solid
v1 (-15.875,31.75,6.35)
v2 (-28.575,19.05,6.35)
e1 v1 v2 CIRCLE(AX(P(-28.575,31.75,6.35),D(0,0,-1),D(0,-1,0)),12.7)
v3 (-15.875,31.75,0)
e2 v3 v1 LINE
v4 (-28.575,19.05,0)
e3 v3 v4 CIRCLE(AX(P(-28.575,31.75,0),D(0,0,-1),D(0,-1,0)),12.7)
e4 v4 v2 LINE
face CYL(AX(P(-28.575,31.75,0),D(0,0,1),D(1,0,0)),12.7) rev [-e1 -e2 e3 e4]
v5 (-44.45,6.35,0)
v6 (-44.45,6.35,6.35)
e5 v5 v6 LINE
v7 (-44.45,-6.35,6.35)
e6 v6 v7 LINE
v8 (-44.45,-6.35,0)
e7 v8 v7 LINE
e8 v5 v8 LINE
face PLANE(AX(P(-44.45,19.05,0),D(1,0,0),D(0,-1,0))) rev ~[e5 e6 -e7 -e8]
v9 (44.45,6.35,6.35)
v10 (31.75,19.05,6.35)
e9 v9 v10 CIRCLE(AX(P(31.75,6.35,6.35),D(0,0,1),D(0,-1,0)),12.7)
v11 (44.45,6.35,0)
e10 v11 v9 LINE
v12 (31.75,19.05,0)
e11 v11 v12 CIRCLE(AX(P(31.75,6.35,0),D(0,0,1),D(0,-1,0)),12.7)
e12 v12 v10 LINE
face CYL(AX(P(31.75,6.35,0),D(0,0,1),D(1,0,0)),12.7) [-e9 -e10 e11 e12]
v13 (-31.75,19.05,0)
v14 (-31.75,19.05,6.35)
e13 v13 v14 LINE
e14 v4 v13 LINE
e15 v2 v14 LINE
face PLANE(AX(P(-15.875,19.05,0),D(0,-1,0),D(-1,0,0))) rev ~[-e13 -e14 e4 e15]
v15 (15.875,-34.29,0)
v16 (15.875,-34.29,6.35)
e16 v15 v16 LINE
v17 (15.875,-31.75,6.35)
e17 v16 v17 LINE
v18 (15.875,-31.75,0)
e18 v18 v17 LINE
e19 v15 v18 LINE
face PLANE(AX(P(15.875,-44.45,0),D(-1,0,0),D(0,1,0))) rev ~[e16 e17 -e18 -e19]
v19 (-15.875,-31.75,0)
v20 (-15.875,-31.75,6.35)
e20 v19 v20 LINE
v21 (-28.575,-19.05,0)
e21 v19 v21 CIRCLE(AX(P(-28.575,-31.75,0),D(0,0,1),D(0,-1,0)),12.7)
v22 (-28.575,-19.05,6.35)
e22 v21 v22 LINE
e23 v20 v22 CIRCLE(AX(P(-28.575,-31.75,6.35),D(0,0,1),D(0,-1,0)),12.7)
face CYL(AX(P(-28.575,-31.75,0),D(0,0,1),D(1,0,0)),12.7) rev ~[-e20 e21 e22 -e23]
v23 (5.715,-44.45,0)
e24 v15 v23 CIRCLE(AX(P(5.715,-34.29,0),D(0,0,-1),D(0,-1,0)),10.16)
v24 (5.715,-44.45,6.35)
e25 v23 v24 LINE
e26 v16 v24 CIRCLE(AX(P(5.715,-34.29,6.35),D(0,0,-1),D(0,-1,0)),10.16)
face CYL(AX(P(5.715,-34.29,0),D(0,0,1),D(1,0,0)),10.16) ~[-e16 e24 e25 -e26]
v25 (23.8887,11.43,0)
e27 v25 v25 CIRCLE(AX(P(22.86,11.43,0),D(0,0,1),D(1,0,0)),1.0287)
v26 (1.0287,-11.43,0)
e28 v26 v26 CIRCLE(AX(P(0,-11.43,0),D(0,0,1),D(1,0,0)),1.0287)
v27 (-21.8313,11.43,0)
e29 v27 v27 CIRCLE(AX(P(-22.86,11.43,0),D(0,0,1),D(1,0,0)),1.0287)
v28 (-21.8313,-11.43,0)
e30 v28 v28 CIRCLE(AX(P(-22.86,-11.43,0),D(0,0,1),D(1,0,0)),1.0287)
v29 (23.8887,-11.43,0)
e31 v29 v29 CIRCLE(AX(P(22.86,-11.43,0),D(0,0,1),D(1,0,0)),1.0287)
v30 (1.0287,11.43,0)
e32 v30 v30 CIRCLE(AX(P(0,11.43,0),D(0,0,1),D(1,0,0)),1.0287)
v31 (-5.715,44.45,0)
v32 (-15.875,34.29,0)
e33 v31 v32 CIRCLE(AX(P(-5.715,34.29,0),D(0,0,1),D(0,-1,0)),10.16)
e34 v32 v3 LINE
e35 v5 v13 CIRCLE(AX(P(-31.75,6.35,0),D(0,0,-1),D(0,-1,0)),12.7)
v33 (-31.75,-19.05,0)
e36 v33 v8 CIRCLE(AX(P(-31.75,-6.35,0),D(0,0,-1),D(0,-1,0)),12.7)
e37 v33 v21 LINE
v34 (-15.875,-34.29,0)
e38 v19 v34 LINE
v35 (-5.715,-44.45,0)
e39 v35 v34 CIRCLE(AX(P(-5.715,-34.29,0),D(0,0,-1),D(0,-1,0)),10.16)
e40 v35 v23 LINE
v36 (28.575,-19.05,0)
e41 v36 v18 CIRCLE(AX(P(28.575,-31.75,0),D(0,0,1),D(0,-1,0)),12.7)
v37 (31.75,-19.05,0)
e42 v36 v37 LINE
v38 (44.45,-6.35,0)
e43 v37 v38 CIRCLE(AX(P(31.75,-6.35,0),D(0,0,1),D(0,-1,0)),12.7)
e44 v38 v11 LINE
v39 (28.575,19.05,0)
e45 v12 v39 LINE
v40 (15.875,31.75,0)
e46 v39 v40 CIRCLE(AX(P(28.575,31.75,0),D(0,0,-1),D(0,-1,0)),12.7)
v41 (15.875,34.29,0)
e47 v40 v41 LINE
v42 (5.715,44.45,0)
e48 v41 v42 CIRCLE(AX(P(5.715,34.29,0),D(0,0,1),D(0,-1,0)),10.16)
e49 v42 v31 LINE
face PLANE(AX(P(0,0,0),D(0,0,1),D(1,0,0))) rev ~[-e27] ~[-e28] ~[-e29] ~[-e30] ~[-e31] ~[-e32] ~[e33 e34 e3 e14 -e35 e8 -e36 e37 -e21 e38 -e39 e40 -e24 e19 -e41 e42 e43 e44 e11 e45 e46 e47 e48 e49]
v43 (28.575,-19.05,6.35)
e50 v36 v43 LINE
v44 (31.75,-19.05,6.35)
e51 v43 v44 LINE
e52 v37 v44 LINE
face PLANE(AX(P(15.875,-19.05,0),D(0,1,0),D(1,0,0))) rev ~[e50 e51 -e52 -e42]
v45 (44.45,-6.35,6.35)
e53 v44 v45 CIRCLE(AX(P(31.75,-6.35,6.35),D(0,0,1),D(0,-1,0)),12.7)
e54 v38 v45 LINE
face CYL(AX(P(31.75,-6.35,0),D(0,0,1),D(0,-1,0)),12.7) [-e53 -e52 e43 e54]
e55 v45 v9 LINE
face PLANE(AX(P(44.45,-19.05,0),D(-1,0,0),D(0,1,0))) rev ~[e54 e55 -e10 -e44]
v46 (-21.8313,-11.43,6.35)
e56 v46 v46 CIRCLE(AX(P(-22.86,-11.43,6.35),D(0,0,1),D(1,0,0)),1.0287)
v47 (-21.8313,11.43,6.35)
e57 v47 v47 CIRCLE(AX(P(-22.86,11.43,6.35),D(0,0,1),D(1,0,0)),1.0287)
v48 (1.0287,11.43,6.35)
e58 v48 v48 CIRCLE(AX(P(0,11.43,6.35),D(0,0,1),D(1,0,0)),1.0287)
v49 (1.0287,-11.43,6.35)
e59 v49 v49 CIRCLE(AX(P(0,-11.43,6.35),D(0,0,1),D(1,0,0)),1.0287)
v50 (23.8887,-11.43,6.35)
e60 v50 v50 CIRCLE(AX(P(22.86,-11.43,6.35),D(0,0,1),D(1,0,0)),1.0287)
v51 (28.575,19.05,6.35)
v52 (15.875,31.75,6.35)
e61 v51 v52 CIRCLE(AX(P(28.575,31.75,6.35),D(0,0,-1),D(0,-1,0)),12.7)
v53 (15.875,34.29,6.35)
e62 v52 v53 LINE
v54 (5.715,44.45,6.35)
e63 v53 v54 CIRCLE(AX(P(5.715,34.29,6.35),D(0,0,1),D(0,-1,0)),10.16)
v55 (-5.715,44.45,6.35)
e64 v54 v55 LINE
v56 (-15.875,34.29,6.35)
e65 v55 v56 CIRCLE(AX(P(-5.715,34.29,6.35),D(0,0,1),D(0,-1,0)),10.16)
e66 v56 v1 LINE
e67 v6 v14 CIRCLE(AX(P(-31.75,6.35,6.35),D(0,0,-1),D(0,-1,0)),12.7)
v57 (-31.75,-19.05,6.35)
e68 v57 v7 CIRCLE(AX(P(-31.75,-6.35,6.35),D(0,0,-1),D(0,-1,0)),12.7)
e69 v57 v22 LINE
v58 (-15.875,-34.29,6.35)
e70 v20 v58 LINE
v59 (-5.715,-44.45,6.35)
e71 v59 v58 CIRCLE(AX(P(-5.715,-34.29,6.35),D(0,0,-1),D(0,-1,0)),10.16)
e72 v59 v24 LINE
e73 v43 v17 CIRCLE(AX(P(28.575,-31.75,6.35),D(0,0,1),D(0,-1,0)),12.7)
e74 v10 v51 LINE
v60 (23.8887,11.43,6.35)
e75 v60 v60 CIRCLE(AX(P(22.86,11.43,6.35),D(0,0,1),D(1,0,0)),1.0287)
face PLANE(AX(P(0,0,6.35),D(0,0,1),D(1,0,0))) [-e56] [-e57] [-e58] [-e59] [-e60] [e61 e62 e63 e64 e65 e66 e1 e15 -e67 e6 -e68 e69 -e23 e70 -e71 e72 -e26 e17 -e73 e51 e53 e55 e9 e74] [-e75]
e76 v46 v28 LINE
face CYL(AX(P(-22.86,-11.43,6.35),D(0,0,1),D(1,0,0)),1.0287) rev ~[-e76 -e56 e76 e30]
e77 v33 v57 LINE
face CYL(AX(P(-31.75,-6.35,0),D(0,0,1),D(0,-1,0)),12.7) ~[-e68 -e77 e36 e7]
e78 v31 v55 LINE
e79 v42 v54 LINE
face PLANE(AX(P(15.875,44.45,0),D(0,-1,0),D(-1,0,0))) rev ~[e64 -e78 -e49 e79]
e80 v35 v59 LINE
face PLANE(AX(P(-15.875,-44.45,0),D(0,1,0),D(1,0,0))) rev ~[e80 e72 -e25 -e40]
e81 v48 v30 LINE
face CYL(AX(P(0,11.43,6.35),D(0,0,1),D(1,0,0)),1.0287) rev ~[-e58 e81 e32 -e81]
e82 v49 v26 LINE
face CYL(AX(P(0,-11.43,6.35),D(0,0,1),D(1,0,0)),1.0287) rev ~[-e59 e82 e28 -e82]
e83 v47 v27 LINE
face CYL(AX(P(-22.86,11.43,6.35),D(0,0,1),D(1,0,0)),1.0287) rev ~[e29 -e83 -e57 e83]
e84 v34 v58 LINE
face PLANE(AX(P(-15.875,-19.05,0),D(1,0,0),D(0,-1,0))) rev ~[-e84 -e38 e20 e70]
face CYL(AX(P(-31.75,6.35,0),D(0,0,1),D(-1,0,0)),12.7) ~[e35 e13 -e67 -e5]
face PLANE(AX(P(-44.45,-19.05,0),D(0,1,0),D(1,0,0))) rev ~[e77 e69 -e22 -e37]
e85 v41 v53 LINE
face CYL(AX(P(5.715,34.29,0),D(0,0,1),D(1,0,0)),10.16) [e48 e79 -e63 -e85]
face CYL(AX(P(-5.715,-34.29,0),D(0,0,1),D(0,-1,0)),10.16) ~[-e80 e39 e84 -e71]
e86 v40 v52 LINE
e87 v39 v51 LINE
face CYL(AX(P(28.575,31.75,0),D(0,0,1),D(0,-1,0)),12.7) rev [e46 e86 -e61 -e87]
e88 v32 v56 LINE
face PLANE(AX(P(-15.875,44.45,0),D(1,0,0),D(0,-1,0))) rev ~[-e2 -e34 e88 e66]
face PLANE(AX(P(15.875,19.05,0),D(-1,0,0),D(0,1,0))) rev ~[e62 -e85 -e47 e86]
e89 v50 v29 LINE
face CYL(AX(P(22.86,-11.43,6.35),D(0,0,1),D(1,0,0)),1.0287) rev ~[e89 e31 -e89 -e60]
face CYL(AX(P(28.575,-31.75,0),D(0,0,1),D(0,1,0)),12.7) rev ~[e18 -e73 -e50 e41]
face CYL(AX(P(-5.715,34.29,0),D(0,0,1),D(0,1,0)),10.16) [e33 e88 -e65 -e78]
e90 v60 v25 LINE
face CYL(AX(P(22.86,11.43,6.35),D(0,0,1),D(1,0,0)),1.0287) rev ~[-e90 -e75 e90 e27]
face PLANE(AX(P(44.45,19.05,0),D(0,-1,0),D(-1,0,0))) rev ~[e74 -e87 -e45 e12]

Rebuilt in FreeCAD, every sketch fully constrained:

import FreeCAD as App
import Part
import Sketcher
from FreeCAD import Vector
Q = App.Units.Quantity


def edges_at(feature, points):
    """Names of the edges that pass closest to the given points."""
    edges = feature.Shape.Edges
    near = lambda p: min(range(len(edges)), key=lambda i: edges[i].distToShape(Part.Vertex(*p))[0])
    return sorted({f"Edge{near(p) + 1}" for p in points})


def add_polygon(sketch, points):
    """Adds a closed chain of lines whose ends are joined by coincident constraints."""
    first, n = sketch.GeometryCount, len(points)
    for a, b in zip(points, points[1:] + points[:1]):
        sketch.addGeometry(Part.LineSegment(App.Vector(*a, 0), App.Vector(*b, 0)), False)
    for i in range(n):
        sketch.addConstraint(Sketcher.Constraint("Coincident", first + i, 2, first + (i + 1) % n, 1))

doc = App.newDocument("Part")
body = doc.addObject("PartDesign::Body", "Body")

# Sketch on XY plane
sketch1 = body.newObject("Sketcher::SketchObject", "Sketch")
sketch1.AttachmentSupport = (doc.getObject("XY_Plane"), [""])
sketch1.MapMode = "FlatFace"
add_polygon(sketch1, [(16, -19), (44, -19), (44, 19), (16, 19), (16, 44), (-16, 44), (-16, 19), (-44, 19), (-44, -19), (-16, -19), (-16, -44), (16, -44)])  # lines 0-11
sketch1.addConstraint(Sketcher.Constraint("Horizontal", 0))
sketch1.addConstraint(Sketcher.Constraint("Vertical", 1))
sketch1.addConstraint(Sketcher.Constraint("Horizontal", 2))
sketch1.addConstraint(Sketcher.Constraint("Vertical", 3))
sketch1.addConstraint(Sketcher.Constraint("Horizontal", 4))
sketch1.addConstraint(Sketcher.Constraint("Vertical", 5))
sketch1.addConstraint(Sketcher.Constraint("Horizontal", 6))
sketch1.addConstraint(Sketcher.Constraint("Vertical", 7))
sketch1.addConstraint(Sketcher.Constraint("Horizontal", 8))
sketch1.addConstraint(Sketcher.Constraint("Vertical", 9))
sketch1.addConstraint(Sketcher.Constraint("Horizontal", 10))
sketch1.addConstraint(Sketcher.Constraint("Vertical", 11))
sketch1.addConstraint(Sketcher.Constraint("Symmetric", 0, 2, 6, 2, -1, 1))
sketch1.addConstraint(Sketcher.Constraint("Symmetric", 2, 2, 8, 2, -1, 1))
sketch1.addConstraint(Sketcher.Constraint("Symmetric", 4, 2, 10, 2, -1, 1))
sketch1.addConstraint(Sketcher.Constraint("Symmetric", 2, 2, 5, 2, -2))
sketch1.addConstraint(Sketcher.Constraint("DistanceY", 3, 1, 3, 2, Q("1 in")))
sketch1.addConstraint(Sketcher.Constraint("DistanceY", 1, 1, 1, 2, Q("1.5 in")))
sketch1.addConstraint(Sketcher.Constraint("DistanceX", 4, 2, 4, 1, Q("1.25 in")))
sketch1.addConstraint(Sketcher.Constraint("DistanceX", 6, 2, 1, 2, Q("3.5 in")))
pad1 = body.newObject("PartDesign::Pad", "Pad")
pad1.Profile = sketch1
pad1.Length = Q("0.25 in")

# Sketch on XY plane
sketch2 = body.newObject("Sketcher::SketchObject", "Sketch001")
sketch2.AttachmentSupport = (doc.getObject("XY_Plane"), [""])
sketch2.MapMode = "FlatFace"
sketch2.AttachmentOffset = App.Placement(Vector(0, 0, 0.25 * 25.4), App.Rotation())
sketch2.addGeometry(Part.Circle(Vector(-22.9, 11.4, 0), Vector(0, 0, 1), 1), False)
sketch2.addGeometry(Part.Circle(Vector(-22.9, -11.4, 0), Vector(0, 0, 1), 1), False)
sketch2.addGeometry(Part.Circle(Vector(0, 11.4, 0), Vector(0, 0, 1), 1), False)
sketch2.addGeometry(Part.Circle(Vector(0, -11.4, 0), Vector(0, 0, 1), 1), False)
sketch2.addGeometry(Part.Circle(Vector(22.9, 11.4, 0), Vector(0, 0, 1), 1), False)
sketch2.addGeometry(Part.Circle(Vector(22.9, -11.4, 0), Vector(0, 0, 1), 1), False)
sketch2.addConstraint(Sketcher.Constraint("Equal", 0, 1))
sketch2.addConstraint(Sketcher.Constraint("Equal", 1, 2))
sketch2.addConstraint(Sketcher.Constraint("Equal", 2, 3))
sketch2.addConstraint(Sketcher.Constraint("Equal", 3, 4))
sketch2.addConstraint(Sketcher.Constraint("Equal", 4, 5))
sketch2.addConstraint(Sketcher.Constraint("Symmetric", 2, 3, 3, 3, -1, 1))
sketch2.addConstraint(Sketcher.Constraint("Symmetric", 1, 3, 4, 3, -1, 1))
sketch2.addConstraint(Sketcher.Constraint("Symmetric", 0, 3, 5, 3, -1, 1))
sketch2.addConstraint(Sketcher.Constraint("Symmetric", 0, 3, 4, 3, -2))
sketch2.addConstraint(Sketcher.Constraint("PointOnObject", 2, 3, -2))
sketch2.addConstraint(Sketcher.Constraint("Horizontal", 0, 3, 2, 3))
sketch2.addConstraint(Sketcher.Constraint("Diameter", 0, Q("0.081 in")))
sketch2.addConstraint(Sketcher.Constraint("DistanceX", 0, 3, -1, 1, Q("0.9 in")))
sketch2.addConstraint(Sketcher.Constraint("DistanceY", 1, 3, 0, 3, Q("0.9 in")))
pocket1 = body.newObject("PartDesign::Pocket", "Pocket")
pocket1.Profile = sketch2
pocket1.Length = Q("1 in")
doc.recompute()

fillet = body.newObject("PartDesign::Fillet", "Fillet")
fillet.Base = (pocket1, edges_at(pocket1, [
    (-44.45, -19.05, 3.175),
    (-44.45, 19.05, 3.175),
    (44.45, 19.05, 3.175),
    (44.45, -19.05, 3.175),
    (-15.875, -19.05, 3.175),
    (-15.875, 19.05, 3.175),
    (15.875, 19.05, 3.175),
    (15.875, -19.05, 3.175),
]))
fillet.Radius = Q("0.5 in")
doc.recompute()

fillet2 = body.newObject("PartDesign::Fillet", "Fillet001")
fillet2.Base = (fillet, edges_at(fillet, [
    (-15.875, 44.45, 3.175),
    (15.875, 44.45, 3.175),
    (-15.875, -44.45, 3.175),
    (15.875, -44.45, 3.175),
]))
fillet2.Radius = Q("0.4 in")

doc.recompute()
